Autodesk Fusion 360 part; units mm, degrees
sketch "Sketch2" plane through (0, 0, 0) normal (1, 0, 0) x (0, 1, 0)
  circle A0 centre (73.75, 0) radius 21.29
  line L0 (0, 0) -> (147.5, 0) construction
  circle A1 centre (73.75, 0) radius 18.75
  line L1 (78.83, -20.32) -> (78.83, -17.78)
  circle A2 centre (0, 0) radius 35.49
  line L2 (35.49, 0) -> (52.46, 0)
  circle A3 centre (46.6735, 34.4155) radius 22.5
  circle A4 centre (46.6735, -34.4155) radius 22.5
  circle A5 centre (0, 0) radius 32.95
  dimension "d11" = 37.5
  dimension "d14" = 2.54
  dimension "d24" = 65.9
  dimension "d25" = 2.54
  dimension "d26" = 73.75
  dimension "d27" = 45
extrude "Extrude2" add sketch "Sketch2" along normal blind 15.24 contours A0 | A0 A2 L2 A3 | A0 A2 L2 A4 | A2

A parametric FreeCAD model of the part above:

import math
import FreeCAD as App
import Part
import Sketcher
from FreeCAD import Vector
Q = App.Units.Quantity

doc = App.newDocument("Part")
params = doc.addObject("Spreadsheet::Sheet", "Params")
for row, (alias, value) in enumerate([
    ("sketch1_diameter", "37.5 mm"),
    ("sketch1_diameter2", "65.9 mm"),
    ("sketch1_radius", "22.5 mm"),
    ("sketch1_radius2", "21.29 mm"),
    ("sketch1_radius3", "35.49 mm"),
    ("pad1_length", "15.24 mm"),
], start=1):
    params.set(f"A{row}", alias)
    params.set(f"B{row}", "=" + value)
    params.setAlias(f"B{row}", alias)

body = doc.addObject("PartDesign::Body", "Body")

# Sketch on YZ plane
sketch1 = body.newObject("Sketcher::SketchObject", "Sketch")
sketch1.AttachmentSupport = (doc.getObject("YZ_Plane"), [""])
sketch1.MapMode = "FlatFace"
sketch1.addGeometry([
    Part.ArcOfCircle(Part.Circle(Vector(74, 0, 0), Vector(0, 0, 1), 21), math.radians(-128), math.radians(128)),  # 0
    Part.ArcOfCircle(Part.Circle(Vector(47, 34, 0), Vector(0, 0, 1), 22), math.radians(-144), math.radians(-52)),  # 1
    Part.ArcOfCircle(Part.Circle(Vector(0, 0, 0), Vector(0, 0, 1), 35), math.radians(36), math.radians(324)),  # 2
    Part.ArcOfCircle(Part.Circle(Vector(47, -34, 0), Vector(0, 0, 1), 22), math.radians(52), math.radians(144)),  # 3
    Part.Circle(Vector(74, 0, 0), Vector(0, 0, 1), 19),  # 4
    Part.Circle(Vector(0, 0, 0), Vector(0, 0, 1), 33),  # 5
], False)
sketch1.addConstraint([
    Sketcher.Constraint("Tangent", 0, 2, 1, 2),
    Sketcher.Constraint("Tangent", 1, 1, 2, 1),
    Sketcher.Constraint("Tangent", 2, 2, 3, 2),
    Sketcher.Constraint("Tangent", 3, 1, 0, 1),
    Sketcher.Constraint("Coincident", 2, 3, -1, 1),
    Sketcher.Constraint("Coincident", 5, 3, -1, 1),
    Sketcher.Constraint("Coincident", 4, 3, 0, 3),
    Sketcher.Constraint("Equal", 1, 3),
    Sketcher.Constraint("PointOnObject", 0, 3, -1),
    Sketcher.Constraint("Diameter", 4, Q("37.5 mm")),
    Sketcher.Constraint("Diameter", 5, Q("65.9 mm")),
    Sketcher.Constraint("Radius", 1, Q("22.5 mm")),
    Sketcher.Constraint("DistanceX", -1, 1, 0, 3, Q("73.75 mm")),
    Sketcher.Constraint("Radius", 0, Q("21.29 mm")),
    Sketcher.Constraint("Radius", 2, Q("35.49 mm")),
])
sketch1.setExpression("Constraints[9]", "Params.sketch1_diameter")
sketch1.setExpression("Constraints[10]", "Params.sketch1_diameter2")
sketch1.setExpression("Constraints[11]", "Params.sketch1_radius")
sketch1.setExpression("Constraints[13]", "Params.sketch1_radius2")
sketch1.setExpression("Constraints[14]", "Params.sketch1_radius3")
pad1 = body.newObject("PartDesign::Pad", "Pad")
pad1.Profile = sketch1
pad1.setExpression("Length", "Params.pad1_length")

doc.recompute()
